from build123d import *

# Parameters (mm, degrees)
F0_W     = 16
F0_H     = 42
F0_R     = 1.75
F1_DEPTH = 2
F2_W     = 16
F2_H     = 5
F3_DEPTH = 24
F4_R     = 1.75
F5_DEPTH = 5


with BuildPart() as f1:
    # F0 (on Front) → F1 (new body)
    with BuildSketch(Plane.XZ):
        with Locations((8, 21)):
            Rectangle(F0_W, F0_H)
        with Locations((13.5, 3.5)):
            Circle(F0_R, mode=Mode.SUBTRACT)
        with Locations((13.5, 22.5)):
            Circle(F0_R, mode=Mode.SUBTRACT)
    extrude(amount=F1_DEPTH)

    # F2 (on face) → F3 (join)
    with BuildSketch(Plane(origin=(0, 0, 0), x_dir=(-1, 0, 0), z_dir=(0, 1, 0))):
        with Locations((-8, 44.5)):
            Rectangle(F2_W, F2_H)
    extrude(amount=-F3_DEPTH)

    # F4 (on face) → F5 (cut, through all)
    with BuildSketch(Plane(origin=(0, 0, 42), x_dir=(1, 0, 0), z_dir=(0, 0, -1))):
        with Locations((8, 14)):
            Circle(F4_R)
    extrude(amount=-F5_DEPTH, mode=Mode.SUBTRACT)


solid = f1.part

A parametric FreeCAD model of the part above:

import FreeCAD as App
import Part
import Sketcher

V = App.Vector
Q = App.Units.Quantity


def add_polygon(sketch, points):
    """Adds a closed chain of lines whose ends are joined by coincident constraints."""
    first, n = sketch.GeometryCount, len(points)
    for a, b in zip(points, points[1:] + points[:1]):
        sketch.addGeometry(Part.LineSegment(App.Vector(*a, 0), App.Vector(*b, 0)), False)
    for i in range(n):
        sketch.addConstraint(Sketcher.Constraint("Coincident", first + i, 2, first + (i + 1) % n, 1))

doc = App.newDocument("Part")
body = doc.addObject("PartDesign::Body", "Body")

# Sketch on XZ plane
sketch1 = doc.addObject("Sketcher::SketchObject", "Sketch")
body.addObject(sketch1)
sketch1.AttachmentSupport = (doc.XZ_Plane, [""])
sketch1.MapMode = "FlatFace"
add_polygon(sketch1, [(0, 42), (0, 0), (16, 0), (16, 42)])  # lines 0-3
sketch1.addGeometry(Part.Circle(V(13.5, 3.5, 0), V(0, 0, 1), 1.75), False)  # 4
sketch1.addGeometry(Part.Circle(V(13.5, 22.5, 0), V(0, 0, 1), 1.75), False)  # 5
sketch1.addConstraint([
    Sketcher.Constraint("Vertical", 0),
    Sketcher.Constraint("Horizontal", 1),
    Sketcher.Constraint("Vertical", 2),
    Sketcher.Constraint("Horizontal", 3),
    Sketcher.Constraint("Coincident", 0, 2, -1, 1),
    Sketcher.Constraint("Equal", 4, 5),
    Sketcher.Constraint("Vertical", 4, 3, 5, 3),
    Sketcher.Constraint("Diameter", 4, Q("3.5 mm")),
    Sketcher.Constraint("DistanceX", 1, 1, 1, 2, Q("16 mm")),
    Sketcher.Constraint("DistanceY", 0, 2, 0, 1, Q("42 mm")),
    Sketcher.Constraint("DistanceY", 4, 3, 5, 3, Q("19 mm")),
    Sketcher.Constraint("DistanceX", -1, 1, 4, 3, Q("13.5 mm")),
    Sketcher.Constraint("DistanceY", -1, 1, 4, 3, Q("3.5 mm")),
])
pad1 = doc.addObject("PartDesign::Pad", "Pad")
body.addObject(pad1)
pad1.Profile = sketch1
pad1.Length = 2

# Sketch on XZ plane
sketch2 = doc.addObject("Sketcher::SketchObject", "Sketch001")
body.addObject(sketch2)
sketch2.AttachmentSupport = (doc.XZ_Plane, [""])
sketch2.MapMode = "FlatFace"
add_polygon(sketch2, [(16, 47), (16, 42), (0, 42), (0, 47)])  # lines 0-3
sketch2.addConstraint([
    Sketcher.Constraint("Vertical", 0),
    Sketcher.Constraint("Horizontal", 1),
    Sketcher.Constraint("Vertical", 2),
    Sketcher.Constraint("Horizontal", 3),
    Sketcher.Constraint("PointOnObject", 1, 2, -2),
    Sketcher.Constraint("DistanceX", 1, 2, 1, 1, Q("16 mm")),
    Sketcher.Constraint("DistanceY", 0, 2, 0, 1, Q("5 mm")),
    Sketcher.Constraint("DistanceY", -1, 1, 0, 2, Q("42 mm")),
])
pad2 = doc.addObject("PartDesign::Pad", "Pad001")
body.addObject(pad2)
pad2.Profile = sketch2
pad2.Length = 24

# Sketch on XY plane
sketch3 = doc.addObject("Sketcher::SketchObject", "Sketch002")
body.addObject(sketch3)
sketch3.AttachmentSupport = (doc.XY_Plane, [""])
sketch3.MapMode = "FlatFace"
sketch3.AttachmentOffset = App.Placement(V(0, 0, 42), App.Rotation())
sketch3.addGeometry(Part.Circle(V(8, -14, 0), V(0, 0, 1), 1.75), False)
sketch3.addConstraint([
    Sketcher.Constraint("Diameter", 0, Q("3.5 mm")),
    Sketcher.Constraint("DistanceX", -1, 1, 0, 3, Q("8 mm")),
    Sketcher.Constraint("DistanceY", 0, 3, -1, 1, Q("14 mm")),
])
pocket1 = doc.addObject("PartDesign::Pocket", "Pocket")
body.addObject(pocket1)
pocket1.Profile = sketch3
pocket1.Type = "ThroughAll"
pocket1.Reversed = True

doc.recompute()
